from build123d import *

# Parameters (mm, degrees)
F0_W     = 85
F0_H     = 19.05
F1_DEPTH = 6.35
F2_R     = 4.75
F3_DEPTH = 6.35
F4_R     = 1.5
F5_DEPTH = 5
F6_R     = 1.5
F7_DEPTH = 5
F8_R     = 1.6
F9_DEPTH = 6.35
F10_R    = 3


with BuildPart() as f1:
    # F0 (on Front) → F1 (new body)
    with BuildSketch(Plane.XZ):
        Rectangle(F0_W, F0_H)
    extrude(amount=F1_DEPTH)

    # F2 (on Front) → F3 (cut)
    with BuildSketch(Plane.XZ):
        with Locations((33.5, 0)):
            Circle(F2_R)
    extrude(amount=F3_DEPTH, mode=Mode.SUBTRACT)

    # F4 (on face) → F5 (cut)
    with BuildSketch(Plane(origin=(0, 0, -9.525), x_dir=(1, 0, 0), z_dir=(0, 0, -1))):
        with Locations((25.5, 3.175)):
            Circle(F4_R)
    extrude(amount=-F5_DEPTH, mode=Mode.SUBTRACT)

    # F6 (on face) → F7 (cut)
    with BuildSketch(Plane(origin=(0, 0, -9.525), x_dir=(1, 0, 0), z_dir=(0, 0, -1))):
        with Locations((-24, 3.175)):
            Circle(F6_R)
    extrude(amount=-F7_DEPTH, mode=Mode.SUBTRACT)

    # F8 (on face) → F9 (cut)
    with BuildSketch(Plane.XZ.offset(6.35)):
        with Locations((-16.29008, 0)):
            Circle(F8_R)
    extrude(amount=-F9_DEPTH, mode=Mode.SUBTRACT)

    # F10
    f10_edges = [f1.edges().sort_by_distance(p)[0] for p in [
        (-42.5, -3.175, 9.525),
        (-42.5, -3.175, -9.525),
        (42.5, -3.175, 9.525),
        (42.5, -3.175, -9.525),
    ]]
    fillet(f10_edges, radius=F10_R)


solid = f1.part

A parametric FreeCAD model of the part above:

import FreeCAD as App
import Part
import Sketcher


def edges_at(feature, points):
    """Names of the edges that pass closest to the given points."""
    edges = feature.Shape.Edges
    near = lambda p: min(range(len(edges)), key=lambda i: edges[i].distToShape(Part.Vertex(*p))[0])
    return sorted({f"Edge{near(p) + 1}" for p in points})


def add_polygon(sketch, points):
    """Adds a closed chain of lines whose ends are joined by coincident constraints."""
    first, n = sketch.GeometryCount, len(points)
    for a, b in zip(points, points[1:] + points[:1]):
        sketch.addGeometry(Part.LineSegment(App.Vector(*a, 0), App.Vector(*b, 0)), False)
    for i in range(n):
        sketch.addConstraint(Sketcher.Constraint("Coincident", first + i, 2, first + (i + 1) % n, 1))

doc = App.newDocument("Part")
body = doc.addObject("PartDesign::Body", "Body")

# Sketch on XZ plane
sketch1 = body.newObject("Sketcher::SketchObject", "Sketch")
sketch1.AttachmentSupport = (doc.getObject("XZ_Plane"), [""])
sketch1.MapMode = "FlatFace"
add_polygon(sketch1, [(-42, 10), (-42, -10), (42, -10), (42, 10)])  # lines 0-3
sketch1.addConstraint([
    Sketcher.Constraint("Vertical", 0),
    Sketcher.Constraint("Horizontal", 1),
    Sketcher.Constraint("Vertical", 2),
    Sketcher.Constraint("Horizontal", 3),
    Sketcher.Constraint("Symmetric", 0, 2, 2, 2, -1, 1),
    Sketcher.Constraint("DistanceX", 1, 1, 1, 2, 85.0),
    Sketcher.Constraint("DistanceY", 0, 2, 0, 1, 19.05),
])
pad1 = body.newObject("PartDesign::Pad", "Pad")
pad1.Profile = sketch1
pad1.Length = 6.35

# Sketch on XZ plane
sketch2 = body.newObject("Sketcher::SketchObject", "Sketch001")
sketch2.AttachmentSupport = (doc.getObject("XZ_Plane"), [""])
sketch2.MapMode = "FlatFace"
sketch2.addGeometry(Part.Circle(App.Vector(33.5, 0, 0), App.Vector(0, 0, 1), 4.8), False)
sketch2.addConstraint([
    Sketcher.Constraint("PointOnObject", 0, 3, -1),
    Sketcher.Constraint("Diameter", 0, 9.5),
    Sketcher.Constraint("DistanceX", -1, 1, 0, 3, 33.5),
])
pocket1 = body.newObject("PartDesign::Pocket", "Pocket")
pocket1.Profile = sketch2
pocket1.Length = 6.35
pocket1.Reversed = True

# Sketch on XY plane
sketch3 = body.newObject("Sketcher::SketchObject", "Sketch002")
sketch3.AttachmentSupport = (doc.getObject("XY_Plane"), [""])
sketch3.MapMode = "FlatFace"
sketch3.AttachmentOffset = App.Placement(App.Vector(0, 0, -9.525), App.Rotation())
sketch3.addGeometry(Part.Circle(App.Vector(25.5, -3.2, 0), App.Vector(0, 0, 1), 1.5), False)
sketch3.addConstraint([
    Sketcher.Constraint("Diameter", 0, 3.0),
    Sketcher.Constraint("DistanceX", -1, 1, 0, 3, 25.5),
    Sketcher.Constraint("DistanceY", 0, 3, -1, 1, 3.175),
])
pocket2 = body.newObject("PartDesign::Pocket", "Pocket001")
pocket2.Profile = sketch3
pocket2.Length = 5
pocket2.Reversed = True

# Sketch on XY plane
sketch4 = body.newObject("Sketcher::SketchObject", "Sketch003")
sketch4.AttachmentSupport = (doc.getObject("XY_Plane"), [""])
sketch4.MapMode = "FlatFace"
sketch4.AttachmentOffset = App.Placement(App.Vector(0, 0, -9.525), App.Rotation())
sketch4.addGeometry(Part.Circle(App.Vector(-24, -3.2, 0), App.Vector(0, 0, 1), 1.5), False)
sketch4.addConstraint([
    Sketcher.Constraint("Diameter", 0, 3.0),
    Sketcher.Constraint("DistanceX", 0, 3, -1, 1, 24.0),
    Sketcher.Constraint("DistanceY", 0, 3, -1, 1, 3.175),
])
pocket3 = body.newObject("PartDesign::Pocket", "Pocket002")
pocket3.Profile = sketch4
pocket3.Length = 5
pocket3.Reversed = True

# Sketch on XZ plane
sketch5 = body.newObject("Sketcher::SketchObject", "Sketch004")
sketch5.AttachmentSupport = (doc.getObject("XZ_Plane"), [""])
sketch5.MapMode = "FlatFace"
sketch5.AttachmentOffset = App.Placement(App.Vector(0, 0, 6.35), App.Rotation())
sketch5.addGeometry(Part.Circle(App.Vector(-16.3, 0, 0), App.Vector(0, 0, 1), 1.6), False)
sketch5.addConstraint([
    Sketcher.Constraint("PointOnObject", 0, 3, -1),
    Sketcher.Constraint("Diameter", 0, 3.2),
    Sketcher.Constraint("DistanceX", 0, 3, -1, 1, 16.29008),
])
pocket4 = body.newObject("PartDesign::Pocket", "Pocket003")
pocket4.Profile = sketch5
pocket4.Length = 6.35
doc.recompute()

fillet = body.newObject("PartDesign::Fillet", "Fillet")
fillet.Base = (pocket4, edges_at(pocket4, [
    (-42.5, -3.175, 9.525),
    (-42.5, -3.175, -9.525),
    (42.5, -3.175, 9.525),
    (42.5, -3.175, -9.525),
]))
fillet.Radius = 3

doc.recompute()
